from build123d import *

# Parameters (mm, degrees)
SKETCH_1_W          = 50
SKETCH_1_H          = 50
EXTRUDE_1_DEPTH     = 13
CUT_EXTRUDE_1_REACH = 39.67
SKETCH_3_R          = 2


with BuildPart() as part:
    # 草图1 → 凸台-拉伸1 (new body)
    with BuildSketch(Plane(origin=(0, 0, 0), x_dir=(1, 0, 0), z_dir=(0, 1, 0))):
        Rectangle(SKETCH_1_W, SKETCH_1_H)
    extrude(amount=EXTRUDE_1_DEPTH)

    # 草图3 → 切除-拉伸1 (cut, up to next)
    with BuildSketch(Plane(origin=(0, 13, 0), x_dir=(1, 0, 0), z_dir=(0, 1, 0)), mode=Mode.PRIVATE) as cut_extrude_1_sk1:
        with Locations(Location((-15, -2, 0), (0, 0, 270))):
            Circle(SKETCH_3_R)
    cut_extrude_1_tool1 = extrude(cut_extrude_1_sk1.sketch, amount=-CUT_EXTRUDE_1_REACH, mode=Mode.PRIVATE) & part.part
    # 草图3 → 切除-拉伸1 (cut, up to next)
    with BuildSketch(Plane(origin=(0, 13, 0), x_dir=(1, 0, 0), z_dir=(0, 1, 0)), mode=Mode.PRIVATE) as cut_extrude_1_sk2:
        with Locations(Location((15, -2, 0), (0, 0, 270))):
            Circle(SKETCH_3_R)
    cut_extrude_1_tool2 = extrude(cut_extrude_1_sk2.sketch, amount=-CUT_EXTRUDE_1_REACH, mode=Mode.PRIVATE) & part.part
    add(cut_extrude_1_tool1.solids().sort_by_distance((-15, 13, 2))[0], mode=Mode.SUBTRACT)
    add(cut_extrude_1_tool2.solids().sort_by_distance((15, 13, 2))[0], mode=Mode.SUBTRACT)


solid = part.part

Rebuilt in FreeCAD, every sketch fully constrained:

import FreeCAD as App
import Part
import Sketcher

V = App.Vector
Q = App.Units.Quantity


def add_polygon(sketch, points):
    """Adds a closed chain of lines whose ends are joined by coincident constraints."""
    first, n = sketch.GeometryCount, len(points)
    for a, b in zip(points, points[1:] + points[:1]):
        sketch.addGeometry(Part.LineSegment(App.Vector(*a, 0), App.Vector(*b, 0)), False)
    for i in range(n):
        sketch.addConstraint(Sketcher.Constraint("Coincident", first + i, 2, first + (i + 1) % n, 1))

doc = App.newDocument("Part")
body = doc.addObject("PartDesign::Body", "Body")

sketch1 = body.newObject("Sketcher::SketchObject", "Sketch")
sketch1.AttachmentSupport = (doc.getObject("XZ_Plane"), [""])
sketch1.MapMode = "FlatFace"
add_polygon(sketch1, [(-25, -25), (-25, 25), (25, 25), (25, -25)])
sketch1.addConstraint(Sketcher.Constraint("Vertical", 0))
sketch1.addConstraint(Sketcher.Constraint("Horizontal", 1))
sketch1.addConstraint(Sketcher.Constraint("Vertical", 2))
sketch1.addConstraint(Sketcher.Constraint("Horizontal", 3))
sketch1.addConstraint(Sketcher.Constraint("Symmetric", 0, 2, 2, 2, -1, 1))
sketch1.addConstraint(Sketcher.Constraint("Equal", 3, 0))
sketch1.addConstraint(Sketcher.Constraint("DistanceX", 1, 1, 1, 2, Q("50 mm")))
pad1 = body.newObject("PartDesign::Pad", "Pad")
pad1.Profile = sketch1
pad1.Length = 13
pad1.Reversed = True

sketch2 = body.newObject("Sketcher::SketchObject", "Sketch001")
sketch2.AttachmentSupport = (doc.getObject("XZ_Plane"), [""])
sketch2.MapMode = "FlatFace"
sketch2.AttachmentOffset = App.Placement(V(0, 0, -13), App.Rotation())
sketch2.addGeometry(Part.Circle(V(-15, 2, 0), V(0, 0, 1), 2), False)
sketch2.addConstraint(Sketcher.Constraint("Diameter", 0, Q("4 mm")))
sketch2.addConstraint(Sketcher.Constraint("DistanceX", 0, 3, -1, 1, Q("15 mm")))
sketch2.addConstraint(Sketcher.Constraint("DistanceY", -1, 1, 0, 3, Q("2 mm")))
pocket1 = body.newObject("PartDesign::Pocket", "Pocket")
pocket1.Profile = sketch2
pocket1.Type = "UpToFirst"
pocket1.Reversed = True

sketch3 = body.newObject("Sketcher::SketchObject", "Sketch002")
sketch3.AttachmentSupport = (doc.getObject("XZ_Plane"), [""])
sketch3.MapMode = "FlatFace"
sketch3.AttachmentOffset = App.Placement(V(0, 0, -13), App.Rotation())
sketch3.addGeometry(Part.Circle(V(15, 2, 0), V(0, 0, 1), 2), False)
sketch3.addConstraint(Sketcher.Constraint("Diameter", 0, Q("4 mm")))
sketch3.addConstraint(Sketcher.Constraint("DistanceX", -1, 1, 0, 3, Q("15 mm")))
sketch3.addConstraint(Sketcher.Constraint("DistanceY", -1, 1, 0, 3, Q("2 mm")))
pocket2 = body.newObject("PartDesign::Pocket", "Pocket001")
pocket2.Profile = sketch3
pocket2.Type = "UpToFirst"
pocket2.Reversed = True

doc.recompute()
